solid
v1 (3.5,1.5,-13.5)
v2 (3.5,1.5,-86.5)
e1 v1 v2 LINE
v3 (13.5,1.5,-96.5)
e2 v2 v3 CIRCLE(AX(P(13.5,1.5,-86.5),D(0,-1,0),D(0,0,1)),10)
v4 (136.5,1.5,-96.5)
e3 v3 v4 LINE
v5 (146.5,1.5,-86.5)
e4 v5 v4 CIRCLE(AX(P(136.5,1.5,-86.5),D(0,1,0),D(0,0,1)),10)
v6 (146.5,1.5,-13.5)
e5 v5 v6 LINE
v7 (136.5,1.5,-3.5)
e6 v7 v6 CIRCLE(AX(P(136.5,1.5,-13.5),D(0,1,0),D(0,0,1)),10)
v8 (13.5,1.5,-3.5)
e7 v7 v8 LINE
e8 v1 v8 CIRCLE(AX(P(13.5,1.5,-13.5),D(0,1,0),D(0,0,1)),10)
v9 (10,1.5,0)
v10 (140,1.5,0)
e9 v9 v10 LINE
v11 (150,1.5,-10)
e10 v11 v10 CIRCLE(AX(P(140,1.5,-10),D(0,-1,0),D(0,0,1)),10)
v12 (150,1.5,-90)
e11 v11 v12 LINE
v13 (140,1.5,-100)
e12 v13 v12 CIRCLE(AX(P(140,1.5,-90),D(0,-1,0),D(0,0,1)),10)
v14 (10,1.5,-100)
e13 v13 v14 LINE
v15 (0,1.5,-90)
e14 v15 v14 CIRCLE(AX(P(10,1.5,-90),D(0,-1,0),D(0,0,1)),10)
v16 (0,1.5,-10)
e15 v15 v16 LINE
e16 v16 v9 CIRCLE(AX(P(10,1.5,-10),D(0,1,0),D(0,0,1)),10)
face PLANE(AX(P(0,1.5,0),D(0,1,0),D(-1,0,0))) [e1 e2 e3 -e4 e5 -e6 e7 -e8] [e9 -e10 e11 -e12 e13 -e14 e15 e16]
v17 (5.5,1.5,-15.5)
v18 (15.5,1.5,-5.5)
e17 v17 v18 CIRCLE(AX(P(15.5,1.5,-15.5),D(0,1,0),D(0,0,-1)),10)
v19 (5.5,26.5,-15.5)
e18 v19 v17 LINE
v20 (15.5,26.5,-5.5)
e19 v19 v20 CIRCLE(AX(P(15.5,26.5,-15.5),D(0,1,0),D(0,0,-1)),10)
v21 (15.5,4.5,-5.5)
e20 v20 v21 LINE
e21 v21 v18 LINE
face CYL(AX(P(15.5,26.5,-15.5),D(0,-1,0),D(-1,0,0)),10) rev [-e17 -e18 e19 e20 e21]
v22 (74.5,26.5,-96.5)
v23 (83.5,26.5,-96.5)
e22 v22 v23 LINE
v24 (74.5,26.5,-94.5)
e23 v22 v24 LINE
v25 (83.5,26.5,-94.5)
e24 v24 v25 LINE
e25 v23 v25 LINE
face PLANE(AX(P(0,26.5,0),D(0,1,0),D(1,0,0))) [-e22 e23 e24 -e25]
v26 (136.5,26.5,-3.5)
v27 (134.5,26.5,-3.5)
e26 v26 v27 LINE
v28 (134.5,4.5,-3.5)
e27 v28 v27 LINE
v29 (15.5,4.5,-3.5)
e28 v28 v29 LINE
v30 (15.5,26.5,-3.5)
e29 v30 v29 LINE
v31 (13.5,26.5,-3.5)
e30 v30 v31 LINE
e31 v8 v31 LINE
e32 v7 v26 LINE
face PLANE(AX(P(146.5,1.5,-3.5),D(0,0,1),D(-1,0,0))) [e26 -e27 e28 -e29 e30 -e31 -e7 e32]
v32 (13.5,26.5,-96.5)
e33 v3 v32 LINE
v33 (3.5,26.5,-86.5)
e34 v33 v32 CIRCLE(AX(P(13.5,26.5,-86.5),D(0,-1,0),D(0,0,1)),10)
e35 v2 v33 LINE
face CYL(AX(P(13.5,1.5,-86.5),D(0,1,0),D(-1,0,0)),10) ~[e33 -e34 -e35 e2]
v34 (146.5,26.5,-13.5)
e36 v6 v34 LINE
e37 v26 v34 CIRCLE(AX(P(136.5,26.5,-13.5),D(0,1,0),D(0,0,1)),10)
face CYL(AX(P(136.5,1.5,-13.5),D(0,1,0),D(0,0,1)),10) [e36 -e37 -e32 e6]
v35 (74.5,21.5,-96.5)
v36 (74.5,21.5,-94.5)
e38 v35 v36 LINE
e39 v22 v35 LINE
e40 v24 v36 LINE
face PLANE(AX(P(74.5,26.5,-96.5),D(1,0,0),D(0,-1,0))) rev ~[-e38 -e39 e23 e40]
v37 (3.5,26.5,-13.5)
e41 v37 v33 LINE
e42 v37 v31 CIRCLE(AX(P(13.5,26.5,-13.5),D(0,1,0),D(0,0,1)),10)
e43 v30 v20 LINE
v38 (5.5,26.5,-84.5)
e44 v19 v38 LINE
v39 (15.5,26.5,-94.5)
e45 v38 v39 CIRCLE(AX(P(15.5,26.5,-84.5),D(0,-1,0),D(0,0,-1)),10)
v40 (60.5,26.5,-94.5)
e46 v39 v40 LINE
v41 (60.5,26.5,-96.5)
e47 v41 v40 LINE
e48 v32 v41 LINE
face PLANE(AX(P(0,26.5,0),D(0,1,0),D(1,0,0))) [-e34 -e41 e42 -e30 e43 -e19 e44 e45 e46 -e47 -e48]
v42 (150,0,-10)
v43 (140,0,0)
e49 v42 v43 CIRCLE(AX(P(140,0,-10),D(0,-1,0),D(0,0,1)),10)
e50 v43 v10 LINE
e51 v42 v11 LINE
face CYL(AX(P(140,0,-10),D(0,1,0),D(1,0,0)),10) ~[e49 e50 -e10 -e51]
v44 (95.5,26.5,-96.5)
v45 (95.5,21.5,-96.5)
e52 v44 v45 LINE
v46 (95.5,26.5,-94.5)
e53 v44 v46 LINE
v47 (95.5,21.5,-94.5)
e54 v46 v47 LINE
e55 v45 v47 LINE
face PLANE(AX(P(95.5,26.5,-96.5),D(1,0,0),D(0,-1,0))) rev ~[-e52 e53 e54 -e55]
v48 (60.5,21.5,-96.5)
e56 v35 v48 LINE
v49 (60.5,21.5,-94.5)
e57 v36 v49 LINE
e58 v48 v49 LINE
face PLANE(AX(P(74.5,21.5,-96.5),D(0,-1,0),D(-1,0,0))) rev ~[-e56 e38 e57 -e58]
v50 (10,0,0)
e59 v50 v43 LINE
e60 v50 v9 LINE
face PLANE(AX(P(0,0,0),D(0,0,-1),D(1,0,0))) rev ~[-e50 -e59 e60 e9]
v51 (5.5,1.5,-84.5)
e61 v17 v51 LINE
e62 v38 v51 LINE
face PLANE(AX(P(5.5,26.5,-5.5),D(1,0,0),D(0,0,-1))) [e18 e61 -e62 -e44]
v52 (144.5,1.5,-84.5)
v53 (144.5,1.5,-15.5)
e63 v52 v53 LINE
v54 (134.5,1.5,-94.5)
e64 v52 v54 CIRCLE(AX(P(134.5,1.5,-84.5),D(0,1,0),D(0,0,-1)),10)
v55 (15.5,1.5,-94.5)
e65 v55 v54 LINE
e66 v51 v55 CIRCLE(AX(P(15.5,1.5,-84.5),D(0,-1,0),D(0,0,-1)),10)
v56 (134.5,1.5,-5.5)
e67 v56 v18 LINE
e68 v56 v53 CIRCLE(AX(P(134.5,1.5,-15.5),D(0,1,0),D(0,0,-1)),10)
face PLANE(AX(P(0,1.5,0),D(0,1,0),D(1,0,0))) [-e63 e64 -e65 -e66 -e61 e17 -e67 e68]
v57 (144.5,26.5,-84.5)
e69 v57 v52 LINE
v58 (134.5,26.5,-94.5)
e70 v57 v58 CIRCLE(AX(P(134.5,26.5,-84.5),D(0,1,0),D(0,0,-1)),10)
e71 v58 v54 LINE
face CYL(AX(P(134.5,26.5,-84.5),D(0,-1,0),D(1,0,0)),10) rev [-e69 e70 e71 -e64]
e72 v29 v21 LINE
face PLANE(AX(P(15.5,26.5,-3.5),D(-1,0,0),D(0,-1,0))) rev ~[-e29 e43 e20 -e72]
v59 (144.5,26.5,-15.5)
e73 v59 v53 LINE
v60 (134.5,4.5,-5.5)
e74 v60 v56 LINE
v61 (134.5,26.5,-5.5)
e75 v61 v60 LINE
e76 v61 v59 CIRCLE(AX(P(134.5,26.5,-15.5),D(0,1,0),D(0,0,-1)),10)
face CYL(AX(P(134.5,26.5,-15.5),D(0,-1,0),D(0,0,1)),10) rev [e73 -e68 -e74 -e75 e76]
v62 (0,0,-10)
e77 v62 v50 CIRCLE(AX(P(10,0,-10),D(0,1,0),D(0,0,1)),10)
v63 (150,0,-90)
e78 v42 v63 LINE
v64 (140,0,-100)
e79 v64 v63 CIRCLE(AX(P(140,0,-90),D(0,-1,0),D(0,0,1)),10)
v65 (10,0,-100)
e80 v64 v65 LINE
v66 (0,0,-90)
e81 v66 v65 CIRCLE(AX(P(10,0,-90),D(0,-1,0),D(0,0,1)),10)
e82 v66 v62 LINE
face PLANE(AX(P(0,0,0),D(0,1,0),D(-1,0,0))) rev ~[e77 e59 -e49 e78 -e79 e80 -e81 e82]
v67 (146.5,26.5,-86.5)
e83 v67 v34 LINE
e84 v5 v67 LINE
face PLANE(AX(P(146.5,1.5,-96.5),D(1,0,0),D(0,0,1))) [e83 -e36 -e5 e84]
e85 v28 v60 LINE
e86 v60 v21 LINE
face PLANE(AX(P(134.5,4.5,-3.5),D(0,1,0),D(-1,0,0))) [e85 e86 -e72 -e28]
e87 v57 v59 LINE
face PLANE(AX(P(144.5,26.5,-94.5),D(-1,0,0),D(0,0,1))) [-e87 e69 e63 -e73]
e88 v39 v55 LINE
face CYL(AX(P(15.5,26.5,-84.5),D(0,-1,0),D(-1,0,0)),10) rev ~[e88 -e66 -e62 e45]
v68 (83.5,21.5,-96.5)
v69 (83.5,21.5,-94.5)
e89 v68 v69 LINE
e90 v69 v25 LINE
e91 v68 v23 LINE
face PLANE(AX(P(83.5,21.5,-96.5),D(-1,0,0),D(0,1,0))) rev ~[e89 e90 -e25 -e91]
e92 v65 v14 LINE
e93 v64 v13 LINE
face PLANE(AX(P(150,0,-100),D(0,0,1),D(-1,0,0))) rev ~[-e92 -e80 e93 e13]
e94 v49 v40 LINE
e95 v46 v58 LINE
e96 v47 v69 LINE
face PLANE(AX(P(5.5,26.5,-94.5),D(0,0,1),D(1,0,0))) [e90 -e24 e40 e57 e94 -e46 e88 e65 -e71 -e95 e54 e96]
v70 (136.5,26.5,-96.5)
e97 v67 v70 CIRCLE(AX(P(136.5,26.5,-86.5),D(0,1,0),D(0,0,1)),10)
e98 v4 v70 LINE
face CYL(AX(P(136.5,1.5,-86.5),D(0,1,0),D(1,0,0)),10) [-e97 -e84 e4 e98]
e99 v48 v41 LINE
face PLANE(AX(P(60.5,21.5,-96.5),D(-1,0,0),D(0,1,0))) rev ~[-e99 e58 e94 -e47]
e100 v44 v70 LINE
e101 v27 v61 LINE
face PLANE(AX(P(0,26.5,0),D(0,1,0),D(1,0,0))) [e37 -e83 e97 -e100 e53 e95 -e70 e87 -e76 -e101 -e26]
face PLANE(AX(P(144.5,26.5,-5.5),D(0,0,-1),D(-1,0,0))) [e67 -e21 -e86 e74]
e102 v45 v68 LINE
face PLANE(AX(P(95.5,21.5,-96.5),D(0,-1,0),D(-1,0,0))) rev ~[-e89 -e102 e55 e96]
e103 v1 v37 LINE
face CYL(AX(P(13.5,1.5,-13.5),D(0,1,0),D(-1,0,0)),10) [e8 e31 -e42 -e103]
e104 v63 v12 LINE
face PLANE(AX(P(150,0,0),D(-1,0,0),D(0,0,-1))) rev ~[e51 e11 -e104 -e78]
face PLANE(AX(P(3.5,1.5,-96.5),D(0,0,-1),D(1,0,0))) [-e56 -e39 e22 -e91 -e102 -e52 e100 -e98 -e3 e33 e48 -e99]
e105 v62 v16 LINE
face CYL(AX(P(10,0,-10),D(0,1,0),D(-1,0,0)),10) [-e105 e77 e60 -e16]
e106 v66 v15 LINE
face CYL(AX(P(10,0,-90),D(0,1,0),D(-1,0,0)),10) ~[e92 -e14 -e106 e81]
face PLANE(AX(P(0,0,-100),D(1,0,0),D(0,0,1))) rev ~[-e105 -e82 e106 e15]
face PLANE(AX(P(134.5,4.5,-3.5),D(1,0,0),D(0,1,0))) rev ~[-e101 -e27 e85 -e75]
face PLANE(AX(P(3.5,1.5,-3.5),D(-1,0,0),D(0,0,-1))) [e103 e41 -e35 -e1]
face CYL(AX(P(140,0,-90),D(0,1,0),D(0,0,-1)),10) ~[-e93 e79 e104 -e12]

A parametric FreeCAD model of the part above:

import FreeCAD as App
import Part
import Sketcher


def edges_at(feature, points):
    """Names of the edges that pass closest to the given points."""
    edges = feature.Shape.Edges
    near = lambda p: min(range(len(edges)), key=lambda i: edges[i].distToShape(Part.Vertex(*p))[0])
    return sorted({f"Edge{near(p) + 1}" for p in points})


def add_polygon(sketch, points):
    """Adds a closed chain of lines whose ends are joined by coincident constraints."""
    first, n = sketch.GeometryCount, len(points)
    for a, b in zip(points, points[1:] + points[:1]):
        sketch.addGeometry(Part.LineSegment(App.Vector(*a, 0), App.Vector(*b, 0)), False)
    for i in range(n):
        sketch.addConstraint(Sketcher.Constraint("Coincident", first + i, 2, first + (i + 1) % n, 1))

doc = App.newDocument("Part")
body = doc.addObject("PartDesign::Body", "Body")

sketch1 = doc.addObject("Sketcher::SketchObject", "Sketch")
body.addObject(sketch1)
sketch1.AttachmentSupport = (doc.XZ_Plane, [""])
sketch1.MapMode = "FlatFace"
add_polygon(sketch1, [(0, -100), (0, 0), (150, 0), (150, -100)])
sketch1.addConstraint(Sketcher.Constraint("Vertical", 0))
sketch1.addConstraint(Sketcher.Constraint("Horizontal", 1))
sketch1.addConstraint(Sketcher.Constraint("Vertical", 2))
sketch1.addConstraint(Sketcher.Constraint("Horizontal", 3))
sketch1.addConstraint(Sketcher.Constraint("Coincident", 0, 2, -1, 1))
sketch1.addConstraint(Sketcher.Constraint("DistanceX", 1, 1, 1, 2, 150.0))
sketch1.addConstraint(Sketcher.Constraint("DistanceY", 0, 1, 0, 2, 100.0))
pad1 = doc.addObject("PartDesign::Pad", "Pad")
body.addObject(pad1)
pad1.Profile = sketch1
pad1.Length = 1.5
pad1.Reversed = True
doc.recompute()

fillet = doc.addObject("PartDesign::Fillet", "Fillet")
body.addObject(fillet)
fillet.Base = (pad1, edges_at(pad1, [
    (150, 0.75, -100),
    (150, 0.75, 0),
    (0, 0.75, 0),
    (0, 0.75, -100),
]))
fillet.Radius = 10

sketch2 = doc.addObject("Sketcher::SketchObject", "Sketch001")
body.addObject(sketch2)
sketch2.AttachmentSupport = (doc.XZ_Plane, [""])
sketch2.MapMode = "FlatFace"
sketch2.AttachmentOffset = App.Placement(App.Vector(0, 0, -1.5), App.Rotation())
add_polygon(sketch2, [(146, -96), (4, -96), (4, -4), (146, -4)])
sketch2.addConstraint(Sketcher.Constraint("Horizontal", 0))
sketch2.addConstraint(Sketcher.Constraint("Vertical", 1))
sketch2.addConstraint(Sketcher.Constraint("Horizontal", 2))
sketch2.addConstraint(Sketcher.Constraint("Vertical", 3))
sketch2.addConstraint(Sketcher.Constraint("DistanceX", 0, 2, 0, 1, 143.0))
sketch2.addConstraint(Sketcher.Constraint("DistanceY", 1, 1, 1, 2, 93.0))
sketch2.addConstraint(Sketcher.Constraint("DistanceX", -1, 1, 0, 2, 3.5))
sketch2.addConstraint(Sketcher.Constraint("DistanceY", 1, 2, -1, 1, 3.5))
pad2 = doc.addObject("PartDesign::Pad", "Pad001")
body.addObject(pad2)
pad2.Profile = sketch2
pad2.Length = 25
pad2.Reversed = True

sketch3 = doc.addObject("Sketcher::SketchObject", "Sketch002")
body.addObject(sketch3)
sketch3.AttachmentSupport = (doc.XZ_Plane, [""])
sketch3.MapMode = "FlatFace"
sketch3.AttachmentOffset = App.Placement(App.Vector(0, 0, -26.5), App.Rotation())
add_polygon(sketch3, [(144, -94), (6, -94), (6, -6), (144, -6)])
sketch3.addConstraint(Sketcher.Constraint("Horizontal", 0))
sketch3.addConstraint(Sketcher.Constraint("Vertical", 1))
sketch3.addConstraint(Sketcher.Constraint("Horizontal", 2))
sketch3.addConstraint(Sketcher.Constraint("Vertical", 3))
sketch3.addConstraint(Sketcher.Constraint("DistanceX", 0, 2, 0, 1, 139.0))
sketch3.addConstraint(Sketcher.Constraint("DistanceY", 1, 1, 1, 2, 89.0))
sketch3.addConstraint(Sketcher.Constraint("DistanceX", -1, 1, 0, 2, 5.5))
sketch3.addConstraint(Sketcher.Constraint("DistanceY", 0, 2, -1, 1, 94.5))
pocket1 = doc.addObject("PartDesign::Pocket", "Pocket")
body.addObject(pocket1)
pocket1.Profile = sketch3
pocket1.Length = 25
pocket1.Reversed = True
doc.recompute()

fillet2 = doc.addObject("PartDesign::Fillet", "Fillet001")
body.addObject(fillet2)
fillet2.Base = (pocket1, edges_at(pocket1, [
    (144.5, 14, -94.5),
    (5.5, 14, -94.5),
    (5.5, 14, -5.5),
    (144.5, 14, -5.5),
    (3.5, 14, -96.5),
    (3.5, 14, -3.5),
    (146.5, 14, -96.5),
    (146.5, 14, -3.5),
]))
fillet2.Radius = 10

sketch4 = doc.addObject("Sketcher::SketchObject", "Sketch003")
body.addObject(sketch4)
sketch4.AttachmentSupport = (doc.XY_Plane, [""])
sketch4.MapMode = "FlatFace"
sketch4.AttachmentOffset = App.Placement(App.Vector(0, 0, -3.5), App.Rotation())
add_polygon(sketch4, [(134, 4), (134, 26), (16, 26), (16, 4)])
sketch4.addConstraint(Sketcher.Constraint("Vertical", 0))
sketch4.addConstraint(Sketcher.Constraint("Horizontal", 1))
sketch4.addConstraint(Sketcher.Constraint("Vertical", 2))
sketch4.addConstraint(Sketcher.Constraint("Horizontal", 3))
sketch4.addConstraint(Sketcher.Constraint("DistanceX", 1, 2, 1, 1, 119.0))
sketch4.addConstraint(Sketcher.Constraint("DistanceY", 0, 1, 0, 2, 22.0))
sketch4.addConstraint(Sketcher.Constraint("DistanceX", -1, 1, 0, 2, 134.5))
sketch4.addConstraint(Sketcher.Constraint("DistanceY", -1, 1, 0, 2, 26.5))
pocket2 = doc.addObject("PartDesign::Pocket", "Pocket001")
body.addObject(pocket2)
pocket2.Profile = sketch4
pocket2.Length = 2

sketch5 = doc.addObject("Sketcher::SketchObject", "Sketch004")
body.addObject(sketch5)
sketch5.AttachmentSupport = (doc.XY_Plane, [""])
sketch5.MapMode = "FlatFace"
sketch5.AttachmentOffset = App.Placement(App.Vector(0, 0, -96.5), App.Rotation())
add_polygon(sketch5, [(60, 22), (60, 26), (74, 26), (74, 22)])
add_polygon(sketch5, [(84, 22), (84, 26), (96, 26), (96, 22)])
sketch5.addConstraint(Sketcher.Constraint("Vertical", 0))
sketch5.addConstraint(Sketcher.Constraint("Horizontal", 1))
sketch5.addConstraint(Sketcher.Constraint("Vertical", 2))
sketch5.addConstraint(Sketcher.Constraint("Horizontal", 3))
sketch5.addConstraint(Sketcher.Constraint("Vertical", 4))
sketch5.addConstraint(Sketcher.Constraint("Horizontal", 5))
sketch5.addConstraint(Sketcher.Constraint("Vertical", 6))
sketch5.addConstraint(Sketcher.Constraint("Horizontal", 7))
sketch5.addConstraint(Sketcher.Constraint("Horizontal", 1, 2, 4, 2))
sketch5.addConstraint(Sketcher.Constraint("Horizontal", 3, 2, 6, 2))
sketch5.addConstraint(Sketcher.Constraint("DistanceY", 0, 1, 0, 2, 5.0))
sketch5.addConstraint(Sketcher.Constraint("DistanceX", 1, 1, 1, 2, 14.0))
sketch5.addConstraint(Sketcher.Constraint("DistanceX", 5, 1, 5, 2, 12.0))
sketch5.addConstraint(Sketcher.Constraint("DistanceX", 1, 2, 4, 2, 9.0))
sketch5.addConstraint(Sketcher.Constraint("DistanceX", -1, 1, 0, 2, 60.5))
sketch5.addConstraint(Sketcher.Constraint("DistanceY", -1, 1, 0, 2, 26.5))
pocket3 = doc.addObject("PartDesign::Pocket", "Pocket002")
body.addObject(pocket3)
pocket3.Profile = sketch5
pocket3.Length = 2
pocket3.Reversed = True

doc.recompute()
